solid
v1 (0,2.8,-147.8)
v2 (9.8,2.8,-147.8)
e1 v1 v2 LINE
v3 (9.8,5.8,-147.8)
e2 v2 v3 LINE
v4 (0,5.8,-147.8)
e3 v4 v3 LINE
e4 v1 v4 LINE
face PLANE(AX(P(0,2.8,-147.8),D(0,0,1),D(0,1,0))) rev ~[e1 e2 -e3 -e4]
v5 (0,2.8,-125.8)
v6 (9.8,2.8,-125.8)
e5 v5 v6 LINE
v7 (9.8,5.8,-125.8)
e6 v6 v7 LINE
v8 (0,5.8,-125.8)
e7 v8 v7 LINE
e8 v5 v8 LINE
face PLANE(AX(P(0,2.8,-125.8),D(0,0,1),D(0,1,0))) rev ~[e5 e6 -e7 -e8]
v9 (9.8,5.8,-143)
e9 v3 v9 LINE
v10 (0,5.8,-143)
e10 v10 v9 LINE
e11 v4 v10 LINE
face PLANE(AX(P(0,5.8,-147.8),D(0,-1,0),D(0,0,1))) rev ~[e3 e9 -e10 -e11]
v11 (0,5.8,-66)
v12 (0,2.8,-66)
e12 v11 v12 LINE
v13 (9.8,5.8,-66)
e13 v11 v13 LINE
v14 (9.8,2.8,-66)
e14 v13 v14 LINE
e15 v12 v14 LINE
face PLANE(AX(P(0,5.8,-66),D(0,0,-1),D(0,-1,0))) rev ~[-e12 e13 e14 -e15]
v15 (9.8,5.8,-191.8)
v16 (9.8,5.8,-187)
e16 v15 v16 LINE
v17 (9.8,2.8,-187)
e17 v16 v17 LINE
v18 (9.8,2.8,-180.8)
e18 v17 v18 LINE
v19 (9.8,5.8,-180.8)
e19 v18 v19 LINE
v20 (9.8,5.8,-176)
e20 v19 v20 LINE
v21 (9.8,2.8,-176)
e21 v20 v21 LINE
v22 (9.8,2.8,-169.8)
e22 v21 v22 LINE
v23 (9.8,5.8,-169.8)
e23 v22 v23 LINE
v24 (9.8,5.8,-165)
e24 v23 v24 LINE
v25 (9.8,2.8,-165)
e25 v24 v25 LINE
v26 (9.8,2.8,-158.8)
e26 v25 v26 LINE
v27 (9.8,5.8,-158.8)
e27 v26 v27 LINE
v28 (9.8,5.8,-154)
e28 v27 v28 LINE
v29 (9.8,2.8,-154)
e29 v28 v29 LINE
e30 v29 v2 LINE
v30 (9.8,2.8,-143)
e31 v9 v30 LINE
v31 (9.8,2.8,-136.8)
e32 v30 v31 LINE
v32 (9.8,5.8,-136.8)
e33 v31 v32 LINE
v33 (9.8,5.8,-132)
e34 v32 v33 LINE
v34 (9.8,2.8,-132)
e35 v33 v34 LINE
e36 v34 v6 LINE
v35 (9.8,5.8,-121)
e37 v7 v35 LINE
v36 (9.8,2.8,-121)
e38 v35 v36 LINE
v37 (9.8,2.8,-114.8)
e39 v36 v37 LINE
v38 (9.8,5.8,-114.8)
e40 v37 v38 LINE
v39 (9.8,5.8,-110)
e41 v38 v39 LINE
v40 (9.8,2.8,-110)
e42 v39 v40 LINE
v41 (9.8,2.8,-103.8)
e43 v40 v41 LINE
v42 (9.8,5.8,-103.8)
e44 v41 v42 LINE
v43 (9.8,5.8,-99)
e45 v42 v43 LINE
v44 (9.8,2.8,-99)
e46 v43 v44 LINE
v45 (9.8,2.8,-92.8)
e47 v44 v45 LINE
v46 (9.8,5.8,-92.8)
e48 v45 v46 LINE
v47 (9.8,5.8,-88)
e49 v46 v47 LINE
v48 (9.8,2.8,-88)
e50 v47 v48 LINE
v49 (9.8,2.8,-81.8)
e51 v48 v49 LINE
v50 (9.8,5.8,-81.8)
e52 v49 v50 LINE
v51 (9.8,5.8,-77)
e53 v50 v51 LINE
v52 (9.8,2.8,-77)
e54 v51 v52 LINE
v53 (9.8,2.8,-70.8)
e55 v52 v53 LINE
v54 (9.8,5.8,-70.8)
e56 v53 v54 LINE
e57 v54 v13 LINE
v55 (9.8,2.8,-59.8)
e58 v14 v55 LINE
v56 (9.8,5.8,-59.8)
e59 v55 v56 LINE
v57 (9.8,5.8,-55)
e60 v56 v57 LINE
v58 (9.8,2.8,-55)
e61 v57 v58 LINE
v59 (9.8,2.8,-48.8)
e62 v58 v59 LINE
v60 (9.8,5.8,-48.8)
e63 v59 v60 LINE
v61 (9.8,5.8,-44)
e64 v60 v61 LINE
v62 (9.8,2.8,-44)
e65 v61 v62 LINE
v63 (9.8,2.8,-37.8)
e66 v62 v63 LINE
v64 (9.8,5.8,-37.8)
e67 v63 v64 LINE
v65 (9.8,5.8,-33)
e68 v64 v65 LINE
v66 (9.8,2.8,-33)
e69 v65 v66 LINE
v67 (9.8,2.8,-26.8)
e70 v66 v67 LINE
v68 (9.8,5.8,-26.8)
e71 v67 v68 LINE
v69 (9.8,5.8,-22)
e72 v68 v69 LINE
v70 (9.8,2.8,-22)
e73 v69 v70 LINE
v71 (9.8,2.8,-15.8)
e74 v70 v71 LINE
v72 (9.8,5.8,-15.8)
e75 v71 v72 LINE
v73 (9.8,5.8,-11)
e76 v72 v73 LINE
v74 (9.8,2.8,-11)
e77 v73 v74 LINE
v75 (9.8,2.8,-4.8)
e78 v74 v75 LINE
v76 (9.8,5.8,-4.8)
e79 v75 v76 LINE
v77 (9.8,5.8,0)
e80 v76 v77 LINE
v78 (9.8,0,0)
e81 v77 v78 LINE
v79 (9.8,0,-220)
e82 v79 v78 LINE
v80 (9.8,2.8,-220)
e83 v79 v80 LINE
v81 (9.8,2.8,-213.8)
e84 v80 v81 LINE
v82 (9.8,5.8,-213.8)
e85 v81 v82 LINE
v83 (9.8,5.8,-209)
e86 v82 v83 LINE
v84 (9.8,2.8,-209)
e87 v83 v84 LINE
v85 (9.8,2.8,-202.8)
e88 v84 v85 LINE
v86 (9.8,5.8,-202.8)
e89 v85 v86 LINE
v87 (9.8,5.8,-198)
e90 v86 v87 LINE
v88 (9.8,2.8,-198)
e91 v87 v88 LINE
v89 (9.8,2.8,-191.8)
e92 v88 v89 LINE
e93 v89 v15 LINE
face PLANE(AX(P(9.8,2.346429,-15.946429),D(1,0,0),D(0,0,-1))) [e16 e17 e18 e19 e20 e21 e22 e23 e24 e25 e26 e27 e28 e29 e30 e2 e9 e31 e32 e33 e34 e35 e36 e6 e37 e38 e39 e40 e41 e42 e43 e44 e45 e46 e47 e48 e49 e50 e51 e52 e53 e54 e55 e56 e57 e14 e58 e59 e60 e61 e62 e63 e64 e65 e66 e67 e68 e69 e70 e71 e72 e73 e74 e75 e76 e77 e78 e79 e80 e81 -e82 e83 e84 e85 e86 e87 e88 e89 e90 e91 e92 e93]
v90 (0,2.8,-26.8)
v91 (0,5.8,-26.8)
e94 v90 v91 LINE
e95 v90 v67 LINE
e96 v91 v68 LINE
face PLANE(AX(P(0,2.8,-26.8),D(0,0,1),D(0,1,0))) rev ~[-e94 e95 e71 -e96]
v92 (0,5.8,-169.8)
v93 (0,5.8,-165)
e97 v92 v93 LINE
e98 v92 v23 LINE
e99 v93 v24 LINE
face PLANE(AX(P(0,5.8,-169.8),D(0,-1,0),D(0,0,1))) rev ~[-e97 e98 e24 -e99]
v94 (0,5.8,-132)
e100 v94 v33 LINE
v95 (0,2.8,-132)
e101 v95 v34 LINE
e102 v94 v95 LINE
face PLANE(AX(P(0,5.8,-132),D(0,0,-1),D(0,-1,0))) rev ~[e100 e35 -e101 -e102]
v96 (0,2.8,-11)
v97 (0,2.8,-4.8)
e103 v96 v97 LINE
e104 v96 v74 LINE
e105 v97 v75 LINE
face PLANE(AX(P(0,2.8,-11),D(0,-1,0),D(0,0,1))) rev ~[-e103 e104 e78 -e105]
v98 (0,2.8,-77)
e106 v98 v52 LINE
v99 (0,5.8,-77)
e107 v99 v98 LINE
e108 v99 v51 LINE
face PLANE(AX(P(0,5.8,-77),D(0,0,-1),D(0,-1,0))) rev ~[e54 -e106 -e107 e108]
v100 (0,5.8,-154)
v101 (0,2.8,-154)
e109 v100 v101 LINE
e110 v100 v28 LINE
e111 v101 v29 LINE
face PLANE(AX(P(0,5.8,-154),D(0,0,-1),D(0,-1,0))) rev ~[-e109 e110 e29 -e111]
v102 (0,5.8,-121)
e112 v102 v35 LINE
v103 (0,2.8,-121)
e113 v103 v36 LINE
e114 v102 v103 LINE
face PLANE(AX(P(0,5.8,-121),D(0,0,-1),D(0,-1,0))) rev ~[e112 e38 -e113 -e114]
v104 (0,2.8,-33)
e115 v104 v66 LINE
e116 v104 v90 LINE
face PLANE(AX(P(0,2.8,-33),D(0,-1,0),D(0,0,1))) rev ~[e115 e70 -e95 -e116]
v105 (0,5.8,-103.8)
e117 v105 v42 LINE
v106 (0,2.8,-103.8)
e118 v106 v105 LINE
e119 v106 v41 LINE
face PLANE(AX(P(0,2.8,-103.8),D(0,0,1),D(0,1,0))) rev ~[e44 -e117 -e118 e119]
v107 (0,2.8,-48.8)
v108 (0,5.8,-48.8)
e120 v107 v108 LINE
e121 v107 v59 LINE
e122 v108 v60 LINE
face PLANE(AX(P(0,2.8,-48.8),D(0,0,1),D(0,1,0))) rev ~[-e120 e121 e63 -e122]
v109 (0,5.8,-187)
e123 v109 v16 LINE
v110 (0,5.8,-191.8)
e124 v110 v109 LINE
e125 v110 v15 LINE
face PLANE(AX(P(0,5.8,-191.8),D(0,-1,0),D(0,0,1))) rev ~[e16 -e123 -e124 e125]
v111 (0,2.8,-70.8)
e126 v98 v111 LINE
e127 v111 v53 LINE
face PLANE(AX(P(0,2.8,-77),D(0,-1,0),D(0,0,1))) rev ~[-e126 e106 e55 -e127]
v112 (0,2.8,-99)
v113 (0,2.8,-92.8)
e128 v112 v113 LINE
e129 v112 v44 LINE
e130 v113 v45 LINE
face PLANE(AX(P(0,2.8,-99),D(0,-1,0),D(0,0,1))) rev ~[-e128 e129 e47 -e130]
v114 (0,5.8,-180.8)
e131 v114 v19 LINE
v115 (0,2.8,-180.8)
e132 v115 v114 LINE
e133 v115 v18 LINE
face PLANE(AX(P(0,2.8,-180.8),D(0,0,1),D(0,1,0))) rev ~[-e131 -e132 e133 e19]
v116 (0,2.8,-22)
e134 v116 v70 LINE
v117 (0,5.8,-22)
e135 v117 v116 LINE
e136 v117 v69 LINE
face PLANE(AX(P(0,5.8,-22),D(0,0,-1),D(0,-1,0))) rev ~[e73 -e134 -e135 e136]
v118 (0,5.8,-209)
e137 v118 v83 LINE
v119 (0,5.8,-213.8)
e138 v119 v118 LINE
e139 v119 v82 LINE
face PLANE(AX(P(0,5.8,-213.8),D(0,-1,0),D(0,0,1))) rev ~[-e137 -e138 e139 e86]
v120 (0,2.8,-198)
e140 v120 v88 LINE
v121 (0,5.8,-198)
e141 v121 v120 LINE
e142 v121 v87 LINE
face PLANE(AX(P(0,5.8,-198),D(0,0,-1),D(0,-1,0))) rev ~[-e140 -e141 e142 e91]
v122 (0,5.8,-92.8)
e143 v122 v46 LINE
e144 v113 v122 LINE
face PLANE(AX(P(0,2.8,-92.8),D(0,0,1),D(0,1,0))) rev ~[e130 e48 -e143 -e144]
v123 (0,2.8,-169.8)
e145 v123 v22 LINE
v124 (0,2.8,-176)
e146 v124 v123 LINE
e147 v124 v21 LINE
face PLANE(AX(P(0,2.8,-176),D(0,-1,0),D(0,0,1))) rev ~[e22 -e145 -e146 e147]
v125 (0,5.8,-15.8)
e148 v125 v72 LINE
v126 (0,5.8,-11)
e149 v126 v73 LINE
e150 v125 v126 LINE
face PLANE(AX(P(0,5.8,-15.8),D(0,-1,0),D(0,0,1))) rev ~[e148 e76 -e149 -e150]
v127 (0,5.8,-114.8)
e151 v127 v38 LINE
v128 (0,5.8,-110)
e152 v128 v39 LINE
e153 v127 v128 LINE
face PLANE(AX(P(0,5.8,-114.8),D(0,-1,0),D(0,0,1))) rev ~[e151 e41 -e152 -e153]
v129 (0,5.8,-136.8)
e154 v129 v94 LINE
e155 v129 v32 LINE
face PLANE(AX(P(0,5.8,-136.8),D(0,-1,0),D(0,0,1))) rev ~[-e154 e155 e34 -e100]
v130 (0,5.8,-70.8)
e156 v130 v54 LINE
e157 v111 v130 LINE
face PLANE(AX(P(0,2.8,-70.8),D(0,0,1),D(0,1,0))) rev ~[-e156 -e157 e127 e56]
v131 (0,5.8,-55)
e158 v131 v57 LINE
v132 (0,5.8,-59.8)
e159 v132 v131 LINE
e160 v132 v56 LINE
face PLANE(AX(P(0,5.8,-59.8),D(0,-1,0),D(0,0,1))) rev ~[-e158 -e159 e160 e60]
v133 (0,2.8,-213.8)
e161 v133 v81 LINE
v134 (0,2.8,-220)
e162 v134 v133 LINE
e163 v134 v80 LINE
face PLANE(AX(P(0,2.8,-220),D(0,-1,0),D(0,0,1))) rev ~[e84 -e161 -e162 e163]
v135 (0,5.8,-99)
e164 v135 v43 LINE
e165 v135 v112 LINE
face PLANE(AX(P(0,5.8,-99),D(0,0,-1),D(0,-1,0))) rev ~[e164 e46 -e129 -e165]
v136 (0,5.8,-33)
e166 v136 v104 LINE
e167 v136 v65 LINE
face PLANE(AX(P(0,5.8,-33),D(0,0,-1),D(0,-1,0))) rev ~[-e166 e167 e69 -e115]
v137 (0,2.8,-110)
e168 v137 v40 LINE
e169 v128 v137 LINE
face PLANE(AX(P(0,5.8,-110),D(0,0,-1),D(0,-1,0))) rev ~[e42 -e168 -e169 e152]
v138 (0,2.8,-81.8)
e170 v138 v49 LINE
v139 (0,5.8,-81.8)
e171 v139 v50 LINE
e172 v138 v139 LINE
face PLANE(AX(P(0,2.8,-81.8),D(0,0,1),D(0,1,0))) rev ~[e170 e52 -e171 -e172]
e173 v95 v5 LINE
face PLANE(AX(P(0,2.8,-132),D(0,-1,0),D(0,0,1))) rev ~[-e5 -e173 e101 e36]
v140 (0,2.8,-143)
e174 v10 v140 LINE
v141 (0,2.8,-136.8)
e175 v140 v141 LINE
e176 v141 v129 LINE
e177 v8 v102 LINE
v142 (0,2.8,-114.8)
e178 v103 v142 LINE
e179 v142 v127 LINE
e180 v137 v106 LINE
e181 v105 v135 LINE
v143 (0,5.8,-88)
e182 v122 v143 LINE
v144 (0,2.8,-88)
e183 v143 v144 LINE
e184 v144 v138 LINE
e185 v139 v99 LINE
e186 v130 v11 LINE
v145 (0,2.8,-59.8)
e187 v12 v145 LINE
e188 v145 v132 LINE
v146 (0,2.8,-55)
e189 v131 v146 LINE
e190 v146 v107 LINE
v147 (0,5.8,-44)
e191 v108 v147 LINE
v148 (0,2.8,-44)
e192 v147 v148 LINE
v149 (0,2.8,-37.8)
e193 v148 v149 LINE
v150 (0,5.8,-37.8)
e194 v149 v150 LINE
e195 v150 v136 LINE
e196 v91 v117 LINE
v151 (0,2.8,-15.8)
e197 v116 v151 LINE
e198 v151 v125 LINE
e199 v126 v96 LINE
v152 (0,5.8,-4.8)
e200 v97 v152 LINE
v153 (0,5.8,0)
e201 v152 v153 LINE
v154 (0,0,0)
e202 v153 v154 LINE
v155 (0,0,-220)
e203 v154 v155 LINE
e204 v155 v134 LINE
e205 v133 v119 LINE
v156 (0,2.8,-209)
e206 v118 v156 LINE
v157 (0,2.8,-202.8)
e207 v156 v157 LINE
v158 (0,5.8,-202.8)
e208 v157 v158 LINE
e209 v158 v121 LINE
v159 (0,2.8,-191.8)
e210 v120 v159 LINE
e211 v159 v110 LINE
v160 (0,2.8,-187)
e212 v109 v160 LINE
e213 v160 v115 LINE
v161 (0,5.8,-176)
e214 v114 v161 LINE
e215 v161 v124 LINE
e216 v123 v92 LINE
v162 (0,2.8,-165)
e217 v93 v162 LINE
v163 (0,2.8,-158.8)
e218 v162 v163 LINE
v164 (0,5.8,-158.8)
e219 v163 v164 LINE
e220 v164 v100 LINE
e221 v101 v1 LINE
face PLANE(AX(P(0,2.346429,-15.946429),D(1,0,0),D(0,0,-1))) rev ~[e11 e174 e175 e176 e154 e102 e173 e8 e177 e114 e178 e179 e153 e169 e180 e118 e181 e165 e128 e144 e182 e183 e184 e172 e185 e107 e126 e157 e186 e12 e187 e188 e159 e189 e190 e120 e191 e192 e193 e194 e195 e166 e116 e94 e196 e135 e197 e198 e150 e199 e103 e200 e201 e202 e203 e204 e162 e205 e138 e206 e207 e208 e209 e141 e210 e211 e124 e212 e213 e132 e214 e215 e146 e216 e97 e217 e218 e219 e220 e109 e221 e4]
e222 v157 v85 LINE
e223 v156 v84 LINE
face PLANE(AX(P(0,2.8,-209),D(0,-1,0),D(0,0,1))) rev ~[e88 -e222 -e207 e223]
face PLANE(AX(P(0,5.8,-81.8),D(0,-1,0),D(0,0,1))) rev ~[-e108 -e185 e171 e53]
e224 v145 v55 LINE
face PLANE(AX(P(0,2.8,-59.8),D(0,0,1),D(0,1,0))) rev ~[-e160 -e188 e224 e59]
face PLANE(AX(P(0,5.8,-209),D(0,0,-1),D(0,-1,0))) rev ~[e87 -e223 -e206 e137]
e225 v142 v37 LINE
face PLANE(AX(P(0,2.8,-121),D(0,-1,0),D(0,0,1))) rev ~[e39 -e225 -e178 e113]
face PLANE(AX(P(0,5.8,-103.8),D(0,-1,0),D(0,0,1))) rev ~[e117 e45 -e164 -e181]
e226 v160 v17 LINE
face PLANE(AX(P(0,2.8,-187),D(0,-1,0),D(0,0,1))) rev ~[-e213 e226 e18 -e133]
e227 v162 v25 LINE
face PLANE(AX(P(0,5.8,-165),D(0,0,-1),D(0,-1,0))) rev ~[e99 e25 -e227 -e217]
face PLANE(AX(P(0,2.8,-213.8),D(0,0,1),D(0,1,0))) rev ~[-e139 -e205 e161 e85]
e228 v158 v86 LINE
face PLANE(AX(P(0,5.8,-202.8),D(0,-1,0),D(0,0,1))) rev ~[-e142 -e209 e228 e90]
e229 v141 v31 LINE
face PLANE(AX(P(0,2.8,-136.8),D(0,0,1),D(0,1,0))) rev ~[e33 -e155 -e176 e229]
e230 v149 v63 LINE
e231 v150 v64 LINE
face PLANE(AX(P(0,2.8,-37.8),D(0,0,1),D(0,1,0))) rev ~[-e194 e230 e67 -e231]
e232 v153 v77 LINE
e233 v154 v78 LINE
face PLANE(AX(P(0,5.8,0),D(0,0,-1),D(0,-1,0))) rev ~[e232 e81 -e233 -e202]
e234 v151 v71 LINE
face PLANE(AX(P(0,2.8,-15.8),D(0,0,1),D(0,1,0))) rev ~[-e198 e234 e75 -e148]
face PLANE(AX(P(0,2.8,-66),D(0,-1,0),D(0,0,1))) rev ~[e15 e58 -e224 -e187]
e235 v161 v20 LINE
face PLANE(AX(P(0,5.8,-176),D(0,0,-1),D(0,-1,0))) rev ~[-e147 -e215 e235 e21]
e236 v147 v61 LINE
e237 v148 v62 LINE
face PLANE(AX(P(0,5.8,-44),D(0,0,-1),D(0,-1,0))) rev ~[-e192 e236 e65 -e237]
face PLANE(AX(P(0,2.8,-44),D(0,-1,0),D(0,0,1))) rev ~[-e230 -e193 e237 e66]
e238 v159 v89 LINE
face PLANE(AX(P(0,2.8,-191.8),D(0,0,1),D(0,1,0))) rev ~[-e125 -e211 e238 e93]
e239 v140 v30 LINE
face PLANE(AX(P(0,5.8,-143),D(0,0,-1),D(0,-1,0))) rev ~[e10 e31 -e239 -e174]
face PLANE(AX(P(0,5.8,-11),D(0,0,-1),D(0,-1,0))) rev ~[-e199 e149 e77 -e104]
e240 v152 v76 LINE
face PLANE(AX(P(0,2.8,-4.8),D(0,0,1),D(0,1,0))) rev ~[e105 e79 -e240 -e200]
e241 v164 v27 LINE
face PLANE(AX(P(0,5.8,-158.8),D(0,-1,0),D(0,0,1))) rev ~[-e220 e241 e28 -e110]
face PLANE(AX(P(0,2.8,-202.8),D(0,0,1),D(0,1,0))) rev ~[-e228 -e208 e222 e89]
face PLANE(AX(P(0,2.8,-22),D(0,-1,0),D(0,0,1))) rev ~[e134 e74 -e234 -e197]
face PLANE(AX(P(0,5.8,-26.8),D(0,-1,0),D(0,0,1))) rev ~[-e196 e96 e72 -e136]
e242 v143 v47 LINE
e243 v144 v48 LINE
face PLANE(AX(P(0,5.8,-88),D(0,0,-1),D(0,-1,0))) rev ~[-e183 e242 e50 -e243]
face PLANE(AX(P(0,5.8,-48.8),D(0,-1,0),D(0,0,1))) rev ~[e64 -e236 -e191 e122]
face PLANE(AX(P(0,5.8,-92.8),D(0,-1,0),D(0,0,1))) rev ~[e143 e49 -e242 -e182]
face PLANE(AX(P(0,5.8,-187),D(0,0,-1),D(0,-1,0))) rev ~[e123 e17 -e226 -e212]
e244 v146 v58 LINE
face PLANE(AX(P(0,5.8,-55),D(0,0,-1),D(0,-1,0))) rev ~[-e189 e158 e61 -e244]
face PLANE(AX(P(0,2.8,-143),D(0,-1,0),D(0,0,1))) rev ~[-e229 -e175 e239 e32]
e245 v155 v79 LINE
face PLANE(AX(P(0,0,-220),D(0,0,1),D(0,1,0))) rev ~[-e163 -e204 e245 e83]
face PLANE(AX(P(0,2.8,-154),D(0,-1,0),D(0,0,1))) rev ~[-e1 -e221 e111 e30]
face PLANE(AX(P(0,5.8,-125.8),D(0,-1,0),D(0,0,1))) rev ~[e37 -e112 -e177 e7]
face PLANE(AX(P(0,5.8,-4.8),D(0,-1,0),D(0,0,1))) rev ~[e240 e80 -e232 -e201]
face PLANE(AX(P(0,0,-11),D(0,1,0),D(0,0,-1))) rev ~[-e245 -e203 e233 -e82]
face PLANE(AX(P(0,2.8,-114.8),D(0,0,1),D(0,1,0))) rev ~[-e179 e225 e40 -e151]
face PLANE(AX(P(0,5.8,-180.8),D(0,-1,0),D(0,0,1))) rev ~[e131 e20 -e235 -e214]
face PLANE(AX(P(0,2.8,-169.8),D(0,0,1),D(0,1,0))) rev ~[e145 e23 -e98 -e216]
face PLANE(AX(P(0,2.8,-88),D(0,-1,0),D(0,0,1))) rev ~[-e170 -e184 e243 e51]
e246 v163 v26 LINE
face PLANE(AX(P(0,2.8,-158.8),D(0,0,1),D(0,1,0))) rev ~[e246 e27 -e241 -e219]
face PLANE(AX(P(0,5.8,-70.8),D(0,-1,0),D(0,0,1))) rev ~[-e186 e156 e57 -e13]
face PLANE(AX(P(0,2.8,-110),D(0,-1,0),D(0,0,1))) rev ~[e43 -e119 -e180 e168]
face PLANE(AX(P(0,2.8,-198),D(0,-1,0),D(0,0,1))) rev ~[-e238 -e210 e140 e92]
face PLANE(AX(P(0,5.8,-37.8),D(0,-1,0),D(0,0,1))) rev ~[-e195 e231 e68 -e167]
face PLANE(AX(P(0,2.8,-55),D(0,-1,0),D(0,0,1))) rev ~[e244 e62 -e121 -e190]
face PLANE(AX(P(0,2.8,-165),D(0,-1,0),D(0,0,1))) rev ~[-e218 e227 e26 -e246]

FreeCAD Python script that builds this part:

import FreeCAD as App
import Part
import Sketcher

doc = App.newDocument("Part")
body = doc.addObject("PartDesign::Body", "Body")

sketch1 = doc.addObject("Sketcher::SketchObject", "Sketch")
body.addObject(sketch1)
sketch1.AttachmentSupport = (doc.YZ_Plane, [""])
sketch1.MapMode = "FlatFace"
sketch1.addGeometry([
    Part.LineSegment(App.Vector(0, 0, 0), App.Vector(0, -11, 0)),
    Part.LineSegment(App.Vector(0, -11, 0), App.Vector(2.8, -11, 0)),
    Part.LineSegment(App.Vector(2.8, -11, 0), App.Vector(2.8, -4.8, 0)),
    Part.LineSegment(App.Vector(2.8, -4.8, 0), App.Vector(5.8, -4.8, 0)),
    Part.LineSegment(App.Vector(5.8, -4.8, 0), App.Vector(5.8, 0, 0)),
    Part.LineSegment(App.Vector(5.8, 0, 0), App.Vector(0, 0, 0)),
], False)
sketch1.addConstraint([
    Sketcher.Constraint("Coincident", 0, 2, 1, 1),
    Sketcher.Constraint("Coincident", 1, 2, 2, 1),
    Sketcher.Constraint("Coincident", 2, 2, 3, 1),
    Sketcher.Constraint("Coincident", 3, 2, 4, 1),
    Sketcher.Constraint("Coincident", 4, 2, 5, 1),
    Sketcher.Constraint("Coincident", 5, 2, 0, 1),
    Sketcher.Constraint("Vertical", 0),
    Sketcher.Constraint("Horizontal", 1),
    Sketcher.Constraint("Vertical", 2),
    Sketcher.Constraint("Horizontal", 3),
    Sketcher.Constraint("Vertical", 4),
    Sketcher.Constraint("Horizontal", 5),
    Sketcher.Constraint("Coincident", 5, 2, -1, 1),
    Sketcher.Constraint("DistanceX", 3, 1, 3, 2, 3.0),
    Sketcher.Constraint("DistanceY", 0, 2, 0, 1, 11.0),
    Sketcher.Constraint("DistanceX", 1, 1, 1, 2, 2.8),
    Sketcher.Constraint("DistanceY", 2, 1, 2, 2, 6.2),
])
pad1 = doc.addObject("PartDesign::Pad", "Pad")
body.addObject(pad1)
pad1.Profile = sketch1
pad1.Length = 9.8
doc.recompute()

linearpattern = doc.addObject("PartDesign::LinearPattern", "LinearPattern")
body.addObject(linearpattern)
linearpattern.Originals = [pad1]
linearpattern.Direction = (doc.Z_Axis, [""])
linearpattern.Mode = "offset"
linearpattern.Offset = 11
linearpattern.Occurrences = 20
linearpattern.Reversed = True
body.Tip = linearpattern

doc.recompute()
